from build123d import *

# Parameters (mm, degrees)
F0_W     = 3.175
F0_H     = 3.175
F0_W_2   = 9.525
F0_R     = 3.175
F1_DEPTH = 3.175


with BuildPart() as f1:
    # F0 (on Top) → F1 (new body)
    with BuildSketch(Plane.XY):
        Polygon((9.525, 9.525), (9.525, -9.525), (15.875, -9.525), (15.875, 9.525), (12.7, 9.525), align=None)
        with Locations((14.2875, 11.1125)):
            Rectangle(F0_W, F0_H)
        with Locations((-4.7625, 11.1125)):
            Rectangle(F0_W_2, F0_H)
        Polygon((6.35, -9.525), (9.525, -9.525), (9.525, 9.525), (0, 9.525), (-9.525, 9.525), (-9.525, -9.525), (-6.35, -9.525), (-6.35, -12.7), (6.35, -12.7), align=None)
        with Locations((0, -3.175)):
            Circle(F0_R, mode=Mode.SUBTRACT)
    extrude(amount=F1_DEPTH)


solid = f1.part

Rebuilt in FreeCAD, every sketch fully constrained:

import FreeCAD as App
import Part
import Sketcher

V = App.Vector
Q = App.Units.Quantity

doc = App.newDocument("Part")
body = doc.addObject("PartDesign::Body", "Body")

# Sketch on XY plane
sketch1 = body.newObject("Sketcher::SketchObject", "Sketch")
sketch1.AttachmentSupport = (doc.getObject("XY_Plane"), [""])
sketch1.MapMode = "FlatFace"
sketch1.addGeometry([
    Part.LineSegment(V(15.875, -9.525, 0), V(15.875, 12.7, 0)),  # 0
    Part.LineSegment(V(15.875, 12.7, 0), V(12.7, 12.7, 0)),  # 1
    Part.LineSegment(V(12.7, 12.7, 0), V(12.7, 9.525, 0)),  # 2
    Part.LineSegment(V(12.7, 9.525, 0), V(0, 9.525, 0)),  # 3
    Part.LineSegment(V(0, 9.525, 0), V(0, 12.7, 0)),  # 4
    Part.LineSegment(V(0, 12.7, 0), V(-9.525, 12.7, 0)),  # 5
    Part.LineSegment(V(-9.525, 12.7, 0), V(-9.525, -9.525, 0)),  # 6
    Part.LineSegment(V(-9.525, -9.525, 0), V(-6.35, -9.525, 0)),  # 7
    Part.LineSegment(V(-6.35, -9.525, 0), V(-6.35, -12.7, 0)),  # 8
    Part.LineSegment(V(-6.35, -12.7, 0), V(6.35, -12.7, 0)),  # 9
    Part.LineSegment(V(6.35, -12.7, 0), V(6.35, -9.525, 0)),  # 10
    Part.LineSegment(V(6.35, -9.525, 0), V(15.875, -9.525, 0)),  # 11
    Part.Circle(V(0, -3.175, 0), V(0, 0, 1), 3.175),  # 12
], False)
sketch1.addConstraint([
    Sketcher.Constraint("Coincident", 0, 2, 1, 1),
    Sketcher.Constraint("Coincident", 1, 2, 2, 1),
    Sketcher.Constraint("Coincident", 2, 2, 3, 1),
    Sketcher.Constraint("Coincident", 3, 2, 4, 1),
    Sketcher.Constraint("Coincident", 4, 2, 5, 1),
    Sketcher.Constraint("Coincident", 5, 2, 6, 1),
    Sketcher.Constraint("Coincident", 6, 2, 7, 1),
    Sketcher.Constraint("Coincident", 7, 2, 8, 1),
    Sketcher.Constraint("Coincident", 8, 2, 9, 1),
    Sketcher.Constraint("Coincident", 9, 2, 10, 1),
    Sketcher.Constraint("Coincident", 10, 2, 11, 1),
    Sketcher.Constraint("Coincident", 11, 2, 0, 1),
    Sketcher.Constraint("Vertical", 0),
    Sketcher.Constraint("Horizontal", 1),
    Sketcher.Constraint("Vertical", 2),
    Sketcher.Constraint("Horizontal", 3),
    Sketcher.Constraint("Vertical", 4),
    Sketcher.Constraint("Horizontal", 5),
    Sketcher.Constraint("Vertical", 6),
    Sketcher.Constraint("Horizontal", 7),
    Sketcher.Constraint("Vertical", 8),
    Sketcher.Constraint("Horizontal", 9),
    Sketcher.Constraint("Vertical", 10),
    Sketcher.Constraint("Horizontal", 11),
    Sketcher.Constraint("Symmetric", 7, 2, 10, 2, -2),
    Sketcher.Constraint("PointOnObject", 12, 3, -2),
    Sketcher.Constraint("PointOnObject", 3, 2, -2),
    Sketcher.Constraint("Horizontal", 1, 2, 4, 2),
    Sketcher.Constraint("Equal", 1, 7),
    Sketcher.Constraint("Equal", 3, 9),
    Sketcher.Constraint("Equal", 7, 2),
    Sketcher.Constraint("Equal", 4, 8),
    Sketcher.Constraint("Diameter", 12, Q("0.25 in")),
    Sketcher.Constraint("DistanceX", 3, 2, 3, 1, Q("0.5 in")),
    Sketcher.Constraint("DistanceY", 8, 2, 5, 2, Q("1 in")),
    Sketcher.Constraint("DistanceY", -1, 1, 0, 2, Q("0.5 in")),
    Sketcher.Constraint("DistanceY", 12, 3, 2, 2, Q("0.5 in")),
    Sketcher.Constraint("DistanceX", 1, 2, 1, 1, Q("0.125 in")),
])
pad1 = body.newObject("PartDesign::Pad", "Pad")
pad1.Profile = sketch1
pad1.Length = Q("0.125 in")

doc.recompute()
